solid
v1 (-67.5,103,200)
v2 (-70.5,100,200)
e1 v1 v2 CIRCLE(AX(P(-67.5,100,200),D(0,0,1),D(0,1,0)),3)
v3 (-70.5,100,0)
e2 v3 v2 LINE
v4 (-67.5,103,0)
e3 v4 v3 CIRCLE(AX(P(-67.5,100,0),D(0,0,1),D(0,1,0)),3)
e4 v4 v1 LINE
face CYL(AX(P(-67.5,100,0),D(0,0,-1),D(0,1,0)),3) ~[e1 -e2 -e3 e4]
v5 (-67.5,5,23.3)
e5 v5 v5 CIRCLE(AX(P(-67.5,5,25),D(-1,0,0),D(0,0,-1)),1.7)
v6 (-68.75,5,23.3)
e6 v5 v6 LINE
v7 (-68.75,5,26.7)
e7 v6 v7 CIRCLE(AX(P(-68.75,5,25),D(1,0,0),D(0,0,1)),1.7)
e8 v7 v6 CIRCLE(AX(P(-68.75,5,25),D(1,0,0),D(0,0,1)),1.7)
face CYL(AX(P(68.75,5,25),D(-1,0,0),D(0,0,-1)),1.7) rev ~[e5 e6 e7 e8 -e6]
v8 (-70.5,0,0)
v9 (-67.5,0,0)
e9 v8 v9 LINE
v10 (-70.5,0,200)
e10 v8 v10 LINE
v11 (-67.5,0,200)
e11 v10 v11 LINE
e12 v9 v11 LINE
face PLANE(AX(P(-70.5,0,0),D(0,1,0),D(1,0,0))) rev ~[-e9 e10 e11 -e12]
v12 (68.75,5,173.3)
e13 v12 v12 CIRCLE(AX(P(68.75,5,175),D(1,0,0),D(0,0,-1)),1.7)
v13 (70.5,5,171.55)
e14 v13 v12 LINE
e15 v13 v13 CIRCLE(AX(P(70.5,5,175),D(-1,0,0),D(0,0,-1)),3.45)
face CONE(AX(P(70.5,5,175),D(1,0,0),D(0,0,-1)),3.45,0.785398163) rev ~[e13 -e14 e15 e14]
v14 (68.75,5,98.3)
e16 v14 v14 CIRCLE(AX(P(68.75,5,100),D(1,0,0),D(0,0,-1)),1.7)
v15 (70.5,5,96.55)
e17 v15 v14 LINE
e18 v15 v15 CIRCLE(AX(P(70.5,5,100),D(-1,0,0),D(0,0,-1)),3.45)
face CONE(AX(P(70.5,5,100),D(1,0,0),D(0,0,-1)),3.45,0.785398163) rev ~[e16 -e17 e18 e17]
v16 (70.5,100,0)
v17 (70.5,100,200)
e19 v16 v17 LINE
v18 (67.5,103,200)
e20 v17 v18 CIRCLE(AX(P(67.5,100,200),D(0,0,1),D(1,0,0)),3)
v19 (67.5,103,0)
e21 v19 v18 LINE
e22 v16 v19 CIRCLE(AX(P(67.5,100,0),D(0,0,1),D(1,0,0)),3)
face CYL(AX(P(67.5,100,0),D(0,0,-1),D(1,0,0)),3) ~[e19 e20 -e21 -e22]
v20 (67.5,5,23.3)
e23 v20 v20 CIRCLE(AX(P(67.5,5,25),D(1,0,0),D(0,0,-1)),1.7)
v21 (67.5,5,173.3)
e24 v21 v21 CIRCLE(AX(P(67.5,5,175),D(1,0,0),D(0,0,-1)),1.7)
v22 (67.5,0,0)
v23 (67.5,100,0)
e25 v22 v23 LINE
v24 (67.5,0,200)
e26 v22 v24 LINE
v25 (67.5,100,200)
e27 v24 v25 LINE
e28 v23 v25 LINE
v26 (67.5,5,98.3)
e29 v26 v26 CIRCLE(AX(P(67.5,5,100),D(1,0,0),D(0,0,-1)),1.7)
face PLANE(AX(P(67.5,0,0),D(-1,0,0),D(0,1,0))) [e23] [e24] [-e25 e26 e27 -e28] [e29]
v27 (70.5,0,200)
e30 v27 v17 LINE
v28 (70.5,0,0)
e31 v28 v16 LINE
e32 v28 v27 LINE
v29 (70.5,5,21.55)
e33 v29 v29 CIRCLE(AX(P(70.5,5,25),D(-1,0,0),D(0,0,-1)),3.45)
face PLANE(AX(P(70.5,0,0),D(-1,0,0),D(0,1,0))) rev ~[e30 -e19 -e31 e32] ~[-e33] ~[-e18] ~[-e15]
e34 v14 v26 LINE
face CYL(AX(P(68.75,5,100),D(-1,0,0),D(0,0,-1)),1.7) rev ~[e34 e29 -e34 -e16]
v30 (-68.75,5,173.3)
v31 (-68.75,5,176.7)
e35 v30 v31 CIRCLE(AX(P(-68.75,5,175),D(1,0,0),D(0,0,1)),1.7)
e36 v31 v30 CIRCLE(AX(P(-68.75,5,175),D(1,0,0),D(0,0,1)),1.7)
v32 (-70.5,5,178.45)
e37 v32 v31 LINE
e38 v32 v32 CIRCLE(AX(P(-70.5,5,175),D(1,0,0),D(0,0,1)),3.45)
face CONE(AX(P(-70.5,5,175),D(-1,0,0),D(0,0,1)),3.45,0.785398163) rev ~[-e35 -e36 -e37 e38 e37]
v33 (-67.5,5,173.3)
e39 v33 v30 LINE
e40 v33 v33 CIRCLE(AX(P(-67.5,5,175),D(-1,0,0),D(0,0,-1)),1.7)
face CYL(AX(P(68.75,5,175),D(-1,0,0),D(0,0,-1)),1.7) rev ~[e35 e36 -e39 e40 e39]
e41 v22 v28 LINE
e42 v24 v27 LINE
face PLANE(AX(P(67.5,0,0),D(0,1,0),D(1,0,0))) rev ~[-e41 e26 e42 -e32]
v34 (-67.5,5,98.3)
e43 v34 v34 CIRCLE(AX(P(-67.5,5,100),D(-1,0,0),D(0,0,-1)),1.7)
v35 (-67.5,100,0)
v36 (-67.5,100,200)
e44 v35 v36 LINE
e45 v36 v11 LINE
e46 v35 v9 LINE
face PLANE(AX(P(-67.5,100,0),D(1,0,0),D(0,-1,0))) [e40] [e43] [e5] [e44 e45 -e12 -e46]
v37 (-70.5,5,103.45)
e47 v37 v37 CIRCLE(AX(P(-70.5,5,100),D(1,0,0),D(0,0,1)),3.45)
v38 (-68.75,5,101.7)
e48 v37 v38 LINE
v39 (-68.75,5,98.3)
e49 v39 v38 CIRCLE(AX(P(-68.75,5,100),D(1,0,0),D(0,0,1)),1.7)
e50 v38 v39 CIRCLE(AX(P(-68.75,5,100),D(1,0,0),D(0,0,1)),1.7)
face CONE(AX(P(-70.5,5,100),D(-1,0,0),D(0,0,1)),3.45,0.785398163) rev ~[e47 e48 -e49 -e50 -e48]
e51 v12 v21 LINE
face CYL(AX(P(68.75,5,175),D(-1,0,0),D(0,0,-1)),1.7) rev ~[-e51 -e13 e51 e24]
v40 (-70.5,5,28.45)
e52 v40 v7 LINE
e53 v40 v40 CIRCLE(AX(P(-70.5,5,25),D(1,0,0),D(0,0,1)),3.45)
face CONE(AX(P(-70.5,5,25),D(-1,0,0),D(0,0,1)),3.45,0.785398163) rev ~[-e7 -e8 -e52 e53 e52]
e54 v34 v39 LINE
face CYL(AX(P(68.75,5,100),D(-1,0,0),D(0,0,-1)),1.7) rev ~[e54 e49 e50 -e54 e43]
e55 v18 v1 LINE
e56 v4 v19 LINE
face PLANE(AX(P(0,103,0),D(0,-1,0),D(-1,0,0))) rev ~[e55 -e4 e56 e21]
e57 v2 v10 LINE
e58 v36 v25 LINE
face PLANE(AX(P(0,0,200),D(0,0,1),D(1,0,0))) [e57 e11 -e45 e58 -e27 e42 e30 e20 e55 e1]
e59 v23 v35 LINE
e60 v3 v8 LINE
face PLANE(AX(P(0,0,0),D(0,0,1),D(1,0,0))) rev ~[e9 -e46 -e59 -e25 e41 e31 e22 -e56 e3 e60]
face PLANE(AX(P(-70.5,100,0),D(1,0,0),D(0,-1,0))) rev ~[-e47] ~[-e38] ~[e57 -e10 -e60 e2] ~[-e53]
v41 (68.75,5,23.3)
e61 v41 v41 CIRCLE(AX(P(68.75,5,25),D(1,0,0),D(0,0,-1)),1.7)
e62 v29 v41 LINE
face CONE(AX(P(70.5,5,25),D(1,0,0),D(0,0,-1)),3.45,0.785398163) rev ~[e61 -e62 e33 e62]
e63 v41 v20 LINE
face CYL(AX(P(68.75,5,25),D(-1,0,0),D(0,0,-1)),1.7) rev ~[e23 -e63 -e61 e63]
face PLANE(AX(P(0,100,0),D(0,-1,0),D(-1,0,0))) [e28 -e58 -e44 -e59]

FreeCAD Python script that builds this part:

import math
import FreeCAD as App
import Part
import Sketcher

V = App.Vector
Q = App.Units.Quantity

doc = App.newDocument("Part")
body = doc.addObject("PartDesign::Body", "Body")

sketch1 = body.newObject("Sketcher::SketchObject", "Sketch")
sketch1.AttachmentSupport = (doc.getObject("XY_Plane"), [""])
sketch1.MapMode = "FlatFace"
sketch1.addGeometry(Part.LineSegment(V(-70.5, 100, 0), V(-70.5, 0, 0)), False)
sketch1.addGeometry(Part.LineSegment(V(-70.5, 0, 0), V(-67.5, 0, 0)), False)
sketch1.addGeometry(Part.LineSegment(V(-67.5, 0, 0), V(-67.5, 100, 0)), False)
sketch1.addGeometry(Part.LineSegment(V(-67.5, 100, 0), V(67.5, 100, 0)), False)
sketch1.addGeometry(Part.LineSegment(V(67.5, 100, 0), V(67.5, 0, 0)), False)
sketch1.addGeometry(Part.LineSegment(V(67.5, 0, 0), V(70.5, 0, 0)), False)
sketch1.addGeometry(Part.LineSegment(V(70.5, 0, 0), V(70.5, 100, 0)), False)
sketch1.addGeometry(Part.ArcOfCircle(Part.Circle(V(67.5, 100, 0), V(0, 0, 1), 3), math.radians(0), math.radians(90)), False)
sketch1.addGeometry(Part.LineSegment(V(67.5, 103, 0), V(-67.5, 103, 0)), False)
sketch1.addGeometry(Part.ArcOfCircle(Part.Circle(V(-67.5, 100, 0), V(0, 0, 1), 3), math.radians(90), math.radians(180)), False)
sketch1.addConstraint(Sketcher.Constraint("Coincident", 0, 2, 1, 1))
sketch1.addConstraint(Sketcher.Constraint("Coincident", 1, 2, 2, 1))
sketch1.addConstraint(Sketcher.Constraint("Coincident", 2, 2, 3, 1))
sketch1.addConstraint(Sketcher.Constraint("Coincident", 3, 2, 4, 1))
sketch1.addConstraint(Sketcher.Constraint("Coincident", 4, 2, 5, 1))
sketch1.addConstraint(Sketcher.Constraint("Coincident", 5, 2, 6, 1))
sketch1.addConstraint(Sketcher.Constraint("Tangent", 6, 2, 7, 1))
sketch1.addConstraint(Sketcher.Constraint("Tangent", 7, 2, 8, 1))
sketch1.addConstraint(Sketcher.Constraint("Tangent", 8, 2, 9, 1))
sketch1.addConstraint(Sketcher.Constraint("Tangent", 9, 2, 0, 1))
sketch1.addConstraint(Sketcher.Constraint("Vertical", 0))
sketch1.addConstraint(Sketcher.Constraint("Horizontal", 1))
sketch1.addConstraint(Sketcher.Constraint("Vertical", 2))
sketch1.addConstraint(Sketcher.Constraint("Horizontal", 3))
sketch1.addConstraint(Sketcher.Constraint("Vertical", 4))
sketch1.addConstraint(Sketcher.Constraint("Horizontal", 5))
sketch1.addConstraint(Sketcher.Constraint("Vertical", 6))
sketch1.addConstraint(Sketcher.Constraint("Horizontal", 8))
sketch1.addConstraint(Sketcher.Constraint("Coincident", 2, 2, 9, 3))
sketch1.addConstraint(Sketcher.Constraint("Coincident", 3, 2, 7, 3))
sketch1.addConstraint(Sketcher.Constraint("Symmetric", 1, 2, 4, 2, -1, 1))
sketch1.addConstraint(Sketcher.Constraint("PointOnObject", 0, 2, -1))
sketch1.addConstraint(Sketcher.Constraint("Radius", 7, Q("3 mm")))
sketch1.addConstraint(Sketcher.Constraint("DistanceX", 3, 1, 3, 2, Q("135 mm")))
sketch1.addConstraint(Sketcher.Constraint("DistanceY", 0, 2, 0, 1, Q("100 mm")))
pad1 = body.newObject("PartDesign::Pad", "Pad")
pad1.Profile = sketch1
pad1.Length = 200

sketch2 = body.newObject("Sketcher::SketchObject", "Sketch001")
sketch2.AttachmentSupport = (doc.getObject("YZ_Plane"), [""])
sketch2.MapMode = "FlatFace"
sketch2.AttachmentOffset = App.Placement(V(0, 0, 70.5), App.Rotation())
sketch2.addGeometry(Part.Circle(V(5, 175, 0), V(0, 0, 1), 1.7), False)
sketch2.addGeometry(Part.Circle(V(5, 25, 0), V(0, 0, 1), 1.7), False)
sketch2.addGeometry(Part.Circle(V(5, 100, 0), V(0, 0, 1), 1.7), False)
sketch2.addConstraint(Sketcher.Constraint("Equal", 0, 1))
sketch2.addConstraint(Sketcher.Constraint("Equal", 1, 2))
sketch2.addConstraint(Sketcher.Constraint("Vertical", 0, 3, 1, 3))
sketch2.addConstraint(Sketcher.Constraint("Vertical", 1, 3, 2, 3))
sketch2.addConstraint(Sketcher.Constraint("Diameter", 0, Q("3.4 mm")))
sketch2.addConstraint(Sketcher.Constraint("DistanceX", -1, 1, 0, 3, Q("5 mm")))
sketch2.addConstraint(Sketcher.Constraint("DistanceY", -1, 1, 0, 3, Q("175 mm")))
sketch2.addConstraint(Sketcher.Constraint("DistanceY", -1, 1, 1, 3, Q("25 mm")))
sketch2.addConstraint(Sketcher.Constraint("DistanceY", -1, 1, 2, 3, Q("100 mm")))
doc.recompute()
hole = body.newObject("PartDesign::Hole", "Hole")
hole.Profile = sketch2
hole.ThreadType = "None"
hole.Diameter = 3.4
hole.DepthType = "ThroughAll"
hole.HoleCutType = "Countersink"
hole.HoleCutDiameter = 6.9
hole.HoleCutCountersinkAngle = 90

sketch3 = body.newObject("Sketcher::SketchObject", "Sketch002")
sketch3.AttachmentSupport = (doc.getObject("YZ_Plane"), [""])
sketch3.MapMode = "FlatFace"
sketch3.AttachmentOffset = App.Placement(V(0, 0, -70.5), App.Rotation())
sketch3.addGeometry(Part.Circle(V(5, 25, 0), V(0, 0, 1), 1.7), False)
sketch3.addGeometry(Part.Circle(V(5, 100, 0), V(0, 0, 1), 1.7), False)
sketch3.addGeometry(Part.Circle(V(5, 175, 0), V(0, 0, 1), 1.7), False)
sketch3.addConstraint(Sketcher.Constraint("Equal", 0, 1))
sketch3.addConstraint(Sketcher.Constraint("Equal", 1, 2))
sketch3.addConstraint(Sketcher.Constraint("Vertical", 0, 3, 1, 3))
sketch3.addConstraint(Sketcher.Constraint("Vertical", 1, 3, 2, 3))
sketch3.addConstraint(Sketcher.Constraint("Diameter", 0, Q("3.4 mm")))
sketch3.addConstraint(Sketcher.Constraint("DistanceX", -1, 1, 0, 3, Q("5 mm")))
sketch3.addConstraint(Sketcher.Constraint("DistanceY", -1, 1, 0, 3, Q("25 mm")))
sketch3.addConstraint(Sketcher.Constraint("DistanceY", -1, 1, 1, 3, Q("100 mm")))
sketch3.addConstraint(Sketcher.Constraint("DistanceY", -1, 1, 2, 3, Q("175 mm")))
doc.recompute()
hole2 = body.newObject("PartDesign::Hole", "Hole001")
hole2.Profile = sketch3
hole2.ThreadType = "None"
hole2.Diameter = 3.4
hole2.DepthType = "ThroughAll"
hole2.HoleCutType = "Countersink"
hole2.HoleCutDiameter = 6.9
hole2.HoleCutCountersinkAngle = 90
hole2.Reversed = True

doc.recompute()
